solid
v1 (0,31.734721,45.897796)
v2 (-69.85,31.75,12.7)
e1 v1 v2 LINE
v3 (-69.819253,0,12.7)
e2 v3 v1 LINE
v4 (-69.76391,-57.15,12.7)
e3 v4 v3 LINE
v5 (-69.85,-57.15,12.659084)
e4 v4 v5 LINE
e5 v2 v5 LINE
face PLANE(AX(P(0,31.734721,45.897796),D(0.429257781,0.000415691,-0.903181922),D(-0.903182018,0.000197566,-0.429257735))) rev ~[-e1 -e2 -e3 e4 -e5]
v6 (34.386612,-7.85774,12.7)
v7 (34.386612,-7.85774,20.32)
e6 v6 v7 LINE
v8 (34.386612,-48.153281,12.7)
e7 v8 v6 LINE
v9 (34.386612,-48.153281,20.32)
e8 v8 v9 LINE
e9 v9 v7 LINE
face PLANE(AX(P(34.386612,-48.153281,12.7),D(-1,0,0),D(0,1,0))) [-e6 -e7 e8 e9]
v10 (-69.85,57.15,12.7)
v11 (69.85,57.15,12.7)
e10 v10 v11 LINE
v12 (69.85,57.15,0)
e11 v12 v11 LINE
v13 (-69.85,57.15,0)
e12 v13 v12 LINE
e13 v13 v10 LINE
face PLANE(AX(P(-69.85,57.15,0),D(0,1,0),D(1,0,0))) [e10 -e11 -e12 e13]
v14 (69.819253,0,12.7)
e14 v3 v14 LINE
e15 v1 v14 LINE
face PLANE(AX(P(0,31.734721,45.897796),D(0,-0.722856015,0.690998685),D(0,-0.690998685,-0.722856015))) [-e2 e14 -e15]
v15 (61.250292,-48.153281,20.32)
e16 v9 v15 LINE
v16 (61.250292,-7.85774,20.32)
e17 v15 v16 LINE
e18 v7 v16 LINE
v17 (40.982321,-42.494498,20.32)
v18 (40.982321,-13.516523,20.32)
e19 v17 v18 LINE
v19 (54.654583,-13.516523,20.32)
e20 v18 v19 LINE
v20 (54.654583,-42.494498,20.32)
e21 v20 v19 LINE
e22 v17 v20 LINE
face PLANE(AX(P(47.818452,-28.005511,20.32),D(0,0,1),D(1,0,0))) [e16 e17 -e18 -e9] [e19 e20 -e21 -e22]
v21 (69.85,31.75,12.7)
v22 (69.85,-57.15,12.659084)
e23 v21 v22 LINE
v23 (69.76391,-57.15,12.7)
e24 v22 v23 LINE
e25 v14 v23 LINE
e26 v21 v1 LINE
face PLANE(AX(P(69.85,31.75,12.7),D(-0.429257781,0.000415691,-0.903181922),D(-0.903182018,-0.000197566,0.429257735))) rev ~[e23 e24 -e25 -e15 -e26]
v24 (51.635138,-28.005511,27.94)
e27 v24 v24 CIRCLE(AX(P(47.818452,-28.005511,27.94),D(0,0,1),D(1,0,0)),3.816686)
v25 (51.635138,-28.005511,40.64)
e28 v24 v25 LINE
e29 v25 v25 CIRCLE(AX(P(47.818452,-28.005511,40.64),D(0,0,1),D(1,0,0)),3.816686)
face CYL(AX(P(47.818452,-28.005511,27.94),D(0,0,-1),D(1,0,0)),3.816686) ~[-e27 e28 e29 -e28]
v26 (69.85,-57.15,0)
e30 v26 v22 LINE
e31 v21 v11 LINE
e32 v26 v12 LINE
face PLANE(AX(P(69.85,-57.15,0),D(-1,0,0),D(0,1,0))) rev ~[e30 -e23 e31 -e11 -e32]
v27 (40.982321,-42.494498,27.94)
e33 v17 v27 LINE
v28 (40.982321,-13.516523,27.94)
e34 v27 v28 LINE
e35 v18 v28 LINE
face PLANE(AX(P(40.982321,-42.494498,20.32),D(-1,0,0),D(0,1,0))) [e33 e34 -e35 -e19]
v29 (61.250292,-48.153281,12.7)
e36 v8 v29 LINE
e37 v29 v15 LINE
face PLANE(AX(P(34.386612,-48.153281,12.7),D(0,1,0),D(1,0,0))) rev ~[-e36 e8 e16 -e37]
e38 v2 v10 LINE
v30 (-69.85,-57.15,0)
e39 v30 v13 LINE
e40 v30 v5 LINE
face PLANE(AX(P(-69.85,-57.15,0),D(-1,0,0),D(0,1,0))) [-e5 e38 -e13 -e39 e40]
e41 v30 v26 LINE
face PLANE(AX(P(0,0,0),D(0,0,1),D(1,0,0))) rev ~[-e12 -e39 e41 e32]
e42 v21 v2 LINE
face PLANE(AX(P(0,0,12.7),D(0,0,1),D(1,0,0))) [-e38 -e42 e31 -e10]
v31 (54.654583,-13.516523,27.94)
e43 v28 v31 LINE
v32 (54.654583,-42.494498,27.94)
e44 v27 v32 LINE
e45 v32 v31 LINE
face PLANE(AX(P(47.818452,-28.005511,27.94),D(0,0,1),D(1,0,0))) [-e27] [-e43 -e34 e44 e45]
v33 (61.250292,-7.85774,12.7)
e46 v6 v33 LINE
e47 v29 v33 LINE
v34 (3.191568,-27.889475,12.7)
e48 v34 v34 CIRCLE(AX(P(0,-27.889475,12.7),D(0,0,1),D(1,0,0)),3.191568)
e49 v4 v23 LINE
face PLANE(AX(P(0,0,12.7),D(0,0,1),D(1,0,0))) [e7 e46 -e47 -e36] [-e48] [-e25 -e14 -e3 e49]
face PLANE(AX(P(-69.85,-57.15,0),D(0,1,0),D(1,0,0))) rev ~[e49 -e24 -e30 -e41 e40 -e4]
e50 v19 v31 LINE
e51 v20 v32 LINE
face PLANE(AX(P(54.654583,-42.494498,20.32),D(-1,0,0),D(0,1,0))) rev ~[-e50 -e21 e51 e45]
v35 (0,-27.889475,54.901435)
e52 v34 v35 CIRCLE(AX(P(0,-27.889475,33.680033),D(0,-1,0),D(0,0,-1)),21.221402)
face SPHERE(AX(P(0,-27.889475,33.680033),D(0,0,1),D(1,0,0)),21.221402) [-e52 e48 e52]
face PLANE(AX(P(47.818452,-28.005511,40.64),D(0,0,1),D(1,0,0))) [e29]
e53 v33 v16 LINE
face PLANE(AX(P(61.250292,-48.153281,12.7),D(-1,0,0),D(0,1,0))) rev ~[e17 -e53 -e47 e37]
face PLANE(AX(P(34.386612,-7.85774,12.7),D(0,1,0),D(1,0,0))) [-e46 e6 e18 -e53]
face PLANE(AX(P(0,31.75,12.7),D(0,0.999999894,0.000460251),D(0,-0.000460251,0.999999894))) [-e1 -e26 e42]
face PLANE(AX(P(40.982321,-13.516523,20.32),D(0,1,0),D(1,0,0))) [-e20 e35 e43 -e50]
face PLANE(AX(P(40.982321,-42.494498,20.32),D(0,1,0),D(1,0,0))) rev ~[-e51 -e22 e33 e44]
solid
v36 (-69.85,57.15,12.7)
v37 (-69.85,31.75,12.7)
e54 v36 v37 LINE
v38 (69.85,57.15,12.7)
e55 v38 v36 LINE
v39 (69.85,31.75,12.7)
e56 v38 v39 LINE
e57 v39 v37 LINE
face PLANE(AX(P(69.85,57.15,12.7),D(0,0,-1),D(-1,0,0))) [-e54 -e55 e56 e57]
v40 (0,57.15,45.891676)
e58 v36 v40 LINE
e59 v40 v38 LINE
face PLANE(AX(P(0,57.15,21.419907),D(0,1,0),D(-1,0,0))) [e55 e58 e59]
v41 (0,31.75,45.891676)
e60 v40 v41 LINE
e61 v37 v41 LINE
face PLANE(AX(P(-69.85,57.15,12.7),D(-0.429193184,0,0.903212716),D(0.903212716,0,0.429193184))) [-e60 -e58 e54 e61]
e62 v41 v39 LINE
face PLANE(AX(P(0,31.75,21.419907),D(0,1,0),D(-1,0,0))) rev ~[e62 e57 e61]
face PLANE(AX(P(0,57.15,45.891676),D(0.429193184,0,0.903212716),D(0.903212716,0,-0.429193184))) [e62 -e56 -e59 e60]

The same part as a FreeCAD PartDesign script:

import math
import FreeCAD as App
import Part
import Sketcher
Q = App.Units.Quantity

doc = App.newDocument("Part")
body = doc.addObject("PartDesign::Body", "Body")

sketch1 = body.newObject("Sketcher::SketchObject", "Sketch")
sketch1.AttachmentSupport = (doc.getObject("XY_Plane"), [""])
sketch1.MapMode = "FlatFace"
sketch1.addGeometry(Part.LineSegment(App.Vector(-70, 57, 0), App.Vector(-70, -57, 0)), False)
sketch1.addGeometry(Part.LineSegment(App.Vector(-70, -57, 0), App.Vector(70, -57, 0)), False)
sketch1.addGeometry(Part.LineSegment(App.Vector(70, -57, 0), App.Vector(70, 57, 0)), False)
sketch1.addGeometry(Part.LineSegment(App.Vector(70, 57, 0), App.Vector(-70, 57, 0)), False)
sketch1.addConstraint(Sketcher.Constraint("Coincident", 0, 2, 1, 1))
sketch1.addConstraint(Sketcher.Constraint("Coincident", 1, 2, 2, 1))
sketch1.addConstraint(Sketcher.Constraint("Coincident", 2, 2, 3, 1))
sketch1.addConstraint(Sketcher.Constraint("Coincident", 3, 2, 0, 1))
sketch1.addConstraint(Sketcher.Constraint("Vertical", 0))
sketch1.addConstraint(Sketcher.Constraint("Horizontal", 1))
sketch1.addConstraint(Sketcher.Constraint("Vertical", 2))
sketch1.addConstraint(Sketcher.Constraint("Horizontal", 3))
sketch1.addConstraint(Sketcher.Constraint("Symmetric", 0, 2, 2, 2, -1, 1))
sketch1.addConstraint(Sketcher.Constraint("DistanceX", 1, 1, 1, 2, Q("5.5 in")))
sketch1.addConstraint(Sketcher.Constraint("DistanceY", 0, 2, 0, 1, Q("4.5 in")))
pad1 = body.newObject("PartDesign::Pad", "Pad")
pad1.Profile = sketch1
pad1.Length = Q("0.5 in")

sketch2 = body.newObject("Sketcher::SketchObject", "Sketch001")
sketch2.AttachmentSupport = (doc.getObject("YZ_Plane"), [""])
sketch2.MapMode = "FlatFace"
sketch2.addGeometry(Part.LineSegment(App.Vector(32, 46, 0), App.Vector(0, 13, 0)), False)
sketch2.addGeometry(Part.LineSegment(App.Vector(0, 13, 0), App.Vector(32, 13, 0)), False)
sketch2.addGeometry(Part.LineSegment(App.Vector(32, 13, 0), App.Vector(32, 46, 0)), False)
sketch2.addConstraint(Sketcher.Constraint("Coincident", 0, 2, 1, 1))
sketch2.addConstraint(Sketcher.Constraint("Coincident", 1, 2, 2, 1))
sketch2.addConstraint(Sketcher.Constraint("Coincident", 2, 2, 0, 1))
sketch2.addConstraint(Sketcher.Constraint("Horizontal", 1))
sketch2.addConstraint(Sketcher.Constraint("PointOnObject", 0, 2, -2))
sketch2.addConstraint(Sketcher.Constraint("DistanceX", 1, 1, 1, 2, Q("1.25 in")))
sketch2.addConstraint(Sketcher.Constraint("DistanceY", -1, 1, 0, 2, Q("0.5 in")))
sketch2.addConstraint(Sketcher.Constraint("Distance", 2, Q("1.307 in")))
sketch2.addConstraint(Sketcher.Constraint("DistanceX", -1, 1, 2, 2, 31.734721))
pad2 = body.newObject("PartDesign::Pad", "Pad001")
pad2.Profile = sketch2
pad2.Length = Q("5.5 in")
pad2.Midplane = True

sketch3 = body.newObject("Sketcher::SketchObject", "Sketch002")
sketch3.Placement = App.Placement(App.Vector(0, 31.755838, 0.014616), App.Rotation(App.Vector(-1, 0, 0), App.Vector(0, -0.000460251, 0.999999894), App.Vector(0, 0.999999894, 0.000460251), "ZXY"))
sketch3.addGeometry(Part.LineSegment(App.Vector(-70, 46, 0), App.Vector(-70, 13, 0)), False)
sketch3.addGeometry(Part.LineSegment(App.Vector(-70, 13, 0), App.Vector(0, 46, 0)), False)
sketch3.addGeometry(Part.LineSegment(App.Vector(0, 46, 0), App.Vector(-70, 46, 0)), False)
sketch3.addGeometry(Part.LineSegment(App.Vector(70, 46, 0), App.Vector(0, 46, 0)), False)
sketch3.addGeometry(Part.LineSegment(App.Vector(0, 46, 0), App.Vector(70, 13, 0)), False)
sketch3.addGeometry(Part.LineSegment(App.Vector(70, 13, 0), App.Vector(70, 46, 0)), False)
sketch3.addConstraint(Sketcher.Constraint("Coincident", 0, 2, 1, 1))
sketch3.addConstraint(Sketcher.Constraint("Coincident", 1, 2, 2, 1))
sketch3.addConstraint(Sketcher.Constraint("Coincident", 2, 2, 0, 1))
sketch3.addConstraint(Sketcher.Constraint("Coincident", 3, 2, 4, 1))
sketch3.addConstraint(Sketcher.Constraint("Coincident", 4, 2, 5, 1))
sketch3.addConstraint(Sketcher.Constraint("Coincident", 5, 2, 3, 1))
sketch3.addConstraint(Sketcher.Constraint("Vertical", 0))
sketch3.addConstraint(Sketcher.Constraint("Horizontal", 2))
sketch3.addConstraint(Sketcher.Constraint("Horizontal", 3))
sketch3.addConstraint(Sketcher.Constraint("Vertical", 5))
sketch3.addConstraint(Sketcher.Constraint("Coincident", 3, 2, 1, 2))
sketch3.addConstraint(Sketcher.Constraint("Symmetric", 0, 2, 4, 2, -2))
sketch3.addConstraint(Sketcher.Constraint("PointOnObject", 1, 2, -2))
sketch3.addConstraint(Sketcher.Constraint("DistanceX", 2, 2, 2, 1, Q("2.75 in")))
sketch3.addConstraint(Sketcher.Constraint("DistanceY", 0, 2, 0, 1, Q("1.307 in")))
sketch3.addConstraint(Sketcher.Constraint("DistanceY", -1, 1, 0, 2, 12.685386))
pocket1 = body.newObject("PartDesign::Pocket", "Pocket")
pocket1.Profile = sketch3
pocket1.Length = Q("6 in")

sketch4 = body.newObject("Sketcher::SketchObject", "Sketch003")
sketch4.AttachmentSupport = (doc.getObject("XZ_Plane"), [""])
sketch4.MapMode = "FlatFace"
sketch4.AttachmentOffset = App.Placement(App.Vector(0, 0, 27.889475), App.Rotation())
sketch4.addGeometry(Part.LineSegment(App.Vector(0, 55, 0), App.Vector(0, 12, 0)), False)
sketch4.addGeometry(Part.ArcOfCircle(Part.Circle(App.Vector(0, 34, 0), App.Vector(0, 0, 1), 21), math.radians(-90), math.radians(90)), False)
sketch4.addConstraint(Sketcher.Constraint("Coincident", 0, 1, 1, 2))
sketch4.addConstraint(Sketcher.Constraint("Coincident", 1, 1, 0, 2))
sketch4.addConstraint(Sketcher.Constraint("Vertical", 0))
sketch4.addConstraint(Sketcher.Constraint("PointOnObject", 1, 3, -2))
sketch4.addConstraint(Sketcher.Constraint("PointOnObject", 0, 1, -2))
sketch4.addConstraint(Sketcher.Constraint("Radius", 1, 21.221402))
sketch4.addConstraint(Sketcher.Constraint("DistanceY", -1, 1, 1, 1, 12.458631))
revolution = body.newObject("PartDesign::Revolution", "Revolution")
revolution.Profile = sketch4
revolution.ReferenceAxis = (sketch4, ["V_Axis"])
revolution.Angle = 360

sketch5 = body.newObject("Sketcher::SketchObject", "Sketch004")
sketch5.AttachmentSupport = (doc.getObject("XY_Plane"), [""])
sketch5.MapMode = "FlatFace"
sketch5.AttachmentOffset = App.Placement(App.Vector(0, 0, 0.5 * 25.4), App.Rotation())
sketch5.addGeometry(Part.LineSegment(App.Vector(34, -8, 0), App.Vector(34, -48, 0)), False)
sketch5.addGeometry(Part.LineSegment(App.Vector(34, -48, 0), App.Vector(61, -48, 0)), False)
sketch5.addGeometry(Part.LineSegment(App.Vector(61, -48, 0), App.Vector(61, -8, 0)), False)
sketch5.addGeometry(Part.LineSegment(App.Vector(61, -8, 0), App.Vector(34, -8, 0)), False)
sketch5.addConstraint(Sketcher.Constraint("Coincident", 0, 2, 1, 1))
sketch5.addConstraint(Sketcher.Constraint("Coincident", 1, 2, 2, 1))
sketch5.addConstraint(Sketcher.Constraint("Coincident", 2, 2, 3, 1))
sketch5.addConstraint(Sketcher.Constraint("Coincident", 3, 2, 0, 1))
sketch5.addConstraint(Sketcher.Constraint("Vertical", 0))
sketch5.addConstraint(Sketcher.Constraint("Horizontal", 1))
sketch5.addConstraint(Sketcher.Constraint("Vertical", 2))
sketch5.addConstraint(Sketcher.Constraint("Horizontal", 3))
sketch5.addConstraint(Sketcher.Constraint("DistanceX", 1, 1, 1, 2, 26.863679))
sketch5.addConstraint(Sketcher.Constraint("DistanceY", 0, 2, 0, 1, 40.295541))
sketch5.addConstraint(Sketcher.Constraint("DistanceY", 0, 2, -1, 1, 48.153281))
sketch5.addConstraint(Sketcher.Constraint("DistanceX", -1, 1, 1, 2, 61.250292))
pad3 = body.newObject("PartDesign::Pad", "Pad002")
pad3.Profile = sketch5
pad3.Length = Q("0.3 in")

sketch6 = body.newObject("Sketcher::SketchObject", "Sketch005")
sketch6.AttachmentSupport = (doc.getObject("XY_Plane"), [""])
sketch6.MapMode = "FlatFace"
sketch6.AttachmentOffset = App.Placement(App.Vector(0, 0, 0.8 * 25.4), App.Rotation())
sketch6.addGeometry(Part.LineSegment(App.Vector(41, -14, 0), App.Vector(41, -42, 0)), False)
sketch6.addGeometry(Part.LineSegment(App.Vector(41, -42, 0), App.Vector(55, -42, 0)), False)
sketch6.addGeometry(Part.LineSegment(App.Vector(55, -42, 0), App.Vector(55, -14, 0)), False)
sketch6.addGeometry(Part.LineSegment(App.Vector(55, -14, 0), App.Vector(41, -14, 0)), False)
sketch6.addConstraint(Sketcher.Constraint("Coincident", 0, 2, 1, 1))
sketch6.addConstraint(Sketcher.Constraint("Coincident", 1, 2, 2, 1))
sketch6.addConstraint(Sketcher.Constraint("Coincident", 2, 2, 3, 1))
sketch6.addConstraint(Sketcher.Constraint("Coincident", 3, 2, 0, 1))
sketch6.addConstraint(Sketcher.Constraint("Vertical", 0))
sketch6.addConstraint(Sketcher.Constraint("Horizontal", 1))
sketch6.addConstraint(Sketcher.Constraint("Vertical", 2))
sketch6.addConstraint(Sketcher.Constraint("Horizontal", 3))
sketch6.addConstraint(Sketcher.Constraint("DistanceY", 0, 2, -1, 1, 42.494498))
sketch6.addConstraint(Sketcher.Constraint("DistanceX", 1, 1, 1, 2, 13.672262))
sketch6.addConstraint(Sketcher.Constraint("DistanceY", 0, 2, 0, 1, 28.977975))
sketch6.addConstraint(Sketcher.Constraint("DistanceX", -1, 1, 0, 2, 40.982321))
pad4 = body.newObject("PartDesign::Pad", "Pad003")
pad4.Profile = sketch6
pad4.Length = Q("0.3 in")

sketch7 = body.newObject("Sketcher::SketchObject", "Sketch006")
sketch7.AttachmentSupport = (doc.getObject("XY_Plane"), [""])
sketch7.MapMode = "FlatFace"
sketch7.AttachmentOffset = App.Placement(App.Vector(0, 0, 1.1 * 25.4), App.Rotation())
sketch7.addGeometry(Part.Circle(App.Vector(47.8, -28, 0), App.Vector(0, 0, 1), 3.8), False)
sketch7.addConstraint(Sketcher.Constraint("Diameter", 0, 7.633373))
sketch7.addConstraint(Sketcher.Constraint("DistanceY", 0, 3, -1, 1, 28.005511))
sketch7.addConstraint(Sketcher.Constraint("DistanceX", -1, 1, 0, 3, 47.818452))
pad5 = body.newObject("PartDesign::Pad", "Pad004")
pad5.Profile = sketch7
pad5.Length = Q("0.5 in")
body2 = doc.addObject("PartDesign::Body", "Body001")

sketch8 = body2.newObject("Sketcher::SketchObject", "Sketch007")
sketch8.AttachmentSupport = (doc.getObject("XZ_Plane001"), [""])
sketch8.MapMode = "FlatFace"
sketch8.AttachmentOffset = App.Placement(App.Vector(0, 0, -2.25 * 25.4), App.Rotation())
sketch8.addGeometry(Part.LineSegment(App.Vector(70, 13, 0), App.Vector(-70, 13, 0)), False)
sketch8.addGeometry(Part.LineSegment(App.Vector(-70, 13, 0), App.Vector(0, 46, 0)), False)
sketch8.addGeometry(Part.LineSegment(App.Vector(0, 46, 0), App.Vector(70, 13, 0)), False)
sketch8.addConstraint(Sketcher.Constraint("Coincident", 0, 2, 1, 1))
sketch8.addConstraint(Sketcher.Constraint("Coincident", 1, 2, 2, 1))
sketch8.addConstraint(Sketcher.Constraint("Coincident", 2, 2, 0, 1))
sketch8.addConstraint(Sketcher.Constraint("Horizontal", 0))
sketch8.addConstraint(Sketcher.Constraint("PointOnObject", 1, 2, -2))
sketch8.addConstraint(Sketcher.Constraint("Equal", 1, 2))
sketch8.addConstraint(Sketcher.Constraint("DistanceX", 0, 2, 0, 1, Q("5.5 in")))
sketch8.addConstraint(Sketcher.Constraint("DistanceY", -1, 1, 0, 2, Q("0.5 in")))
sketch8.addConstraint(Sketcher.Constraint("Distance", 1, 77.335049))
pad6 = body2.newObject("PartDesign::Pad", "Pad005")
pad6.Profile = sketch8
pad6.Length = Q("1 in")

doc.recompute()
